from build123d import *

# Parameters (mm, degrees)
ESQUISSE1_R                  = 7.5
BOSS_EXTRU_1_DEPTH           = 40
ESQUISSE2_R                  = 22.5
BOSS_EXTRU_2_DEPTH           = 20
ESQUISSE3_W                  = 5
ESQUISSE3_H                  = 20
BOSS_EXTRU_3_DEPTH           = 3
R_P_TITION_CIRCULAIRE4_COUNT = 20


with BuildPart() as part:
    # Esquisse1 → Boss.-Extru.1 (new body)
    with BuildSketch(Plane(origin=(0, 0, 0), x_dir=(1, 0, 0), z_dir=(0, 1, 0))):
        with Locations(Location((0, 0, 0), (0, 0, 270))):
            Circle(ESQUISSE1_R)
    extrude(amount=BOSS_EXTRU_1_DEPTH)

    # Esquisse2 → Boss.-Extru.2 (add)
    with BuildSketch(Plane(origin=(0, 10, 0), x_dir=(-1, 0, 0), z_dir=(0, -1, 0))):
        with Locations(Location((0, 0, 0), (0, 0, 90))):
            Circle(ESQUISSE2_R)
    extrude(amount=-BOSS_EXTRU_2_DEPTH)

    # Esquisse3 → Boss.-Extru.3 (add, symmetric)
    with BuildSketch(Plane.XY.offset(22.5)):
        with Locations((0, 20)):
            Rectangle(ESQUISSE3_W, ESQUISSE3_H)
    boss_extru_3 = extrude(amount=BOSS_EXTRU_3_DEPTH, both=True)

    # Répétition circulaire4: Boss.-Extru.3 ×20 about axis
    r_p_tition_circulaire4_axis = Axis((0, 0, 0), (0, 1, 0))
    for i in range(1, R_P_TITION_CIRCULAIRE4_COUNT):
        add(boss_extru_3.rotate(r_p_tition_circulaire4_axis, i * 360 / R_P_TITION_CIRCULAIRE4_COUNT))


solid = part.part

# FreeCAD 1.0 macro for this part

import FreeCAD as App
import Part
import Sketcher


def add_polygon(sketch, points):
    """Adds a closed chain of lines whose ends are joined by coincident constraints."""
    first, n = sketch.GeometryCount, len(points)
    for a, b in zip(points, points[1:] + points[:1]):
        sketch.addGeometry(Part.LineSegment(App.Vector(*a, 0), App.Vector(*b, 0)), False)
    for i in range(n):
        sketch.addConstraint(Sketcher.Constraint("Coincident", first + i, 2, first + (i + 1) % n, 1))

doc = App.newDocument("Part")
body = doc.addObject("PartDesign::Body", "Body")

# Sketch on XZ plane
sketch1 = doc.addObject("Sketcher::SketchObject", "Sketch")
body.addObject(sketch1)
sketch1.AttachmentSupport = (doc.XZ_Plane, [""])
sketch1.MapMode = "FlatFace"
sketch1.addGeometry(Part.Circle(App.Vector(0, 0, 0), App.Vector(0, 0, 1), 8), False)
sketch1.addConstraint(Sketcher.Constraint("Coincident", 0, 3, -1, 1))
sketch1.addConstraint(Sketcher.Constraint("Diameter", 0, 15.0))
pad1 = doc.addObject("PartDesign::Pad", "Pad")
body.addObject(pad1)
pad1.Profile = sketch1
pad1.Length = 40
pad1.Reversed = True

# Sketch on XZ plane
sketch2 = doc.addObject("Sketcher::SketchObject", "Sketch001")
body.addObject(sketch2)
sketch2.AttachmentSupport = (doc.XZ_Plane, [""])
sketch2.MapMode = "FlatFace"
sketch2.AttachmentOffset = App.Placement(App.Vector(0, 0, -10), App.Rotation())
sketch2.addGeometry(Part.Circle(App.Vector(0, 0, 0), App.Vector(0, 0, 1), 22), False)
sketch2.addConstraint(Sketcher.Constraint("Coincident", 0, 3, -1, 1))
sketch2.addConstraint(Sketcher.Constraint("Diameter", 0, 45.0))
pad2 = doc.addObject("PartDesign::Pad", "Pad001")
body.addObject(pad2)
pad2.Profile = sketch2
pad2.Length = 20
pad2.Reversed = True

# Sketch on XY plane
sketch3 = doc.addObject("Sketcher::SketchObject", "Sketch002")
body.addObject(sketch3)
sketch3.AttachmentSupport = (doc.XY_Plane, [""])
sketch3.MapMode = "FlatFace"
sketch3.AttachmentOffset = App.Placement(App.Vector(0, 0, 22.5), App.Rotation())
add_polygon(sketch3, [(-2, 30), (-2, 10), (2, 10), (2, 30)])  # lines 0-3
sketch3.addConstraint(Sketcher.Constraint("Vertical", 0))
sketch3.addConstraint(Sketcher.Constraint("Horizontal", 1))
sketch3.addConstraint(Sketcher.Constraint("Vertical", 2))
sketch3.addConstraint(Sketcher.Constraint("Horizontal", 3))
sketch3.addConstraint(Sketcher.Constraint("DistanceX", 1, 1, 1, 2, 5.0))
sketch3.addConstraint(Sketcher.Constraint("DistanceY", 0, 2, 0, 1, 20.0))
sketch3.addConstraint(Sketcher.Constraint("DistanceY", -1, 1, 0, 2, 10.0))
sketch3.addConstraint(Sketcher.Constraint("DistanceX", 0, 2, -1, 1, 2.5))
pad3 = doc.addObject("PartDesign::Pad", "Pad002")
body.addObject(pad3)
pad3.Profile = sketch3
pad3.Length = 6
pad3.Midplane = True
doc.recompute()

polarpattern = doc.addObject("PartDesign::PolarPattern", "PolarPattern")
body.addObject(polarpattern)
polarpattern.Originals = [pad3]
polarpattern.Axis = (doc.Y_Axis, [""])
polarpattern.Angle = 360
polarpattern.Occurrences = 20
body.Tip = polarpattern

doc.recompute()
